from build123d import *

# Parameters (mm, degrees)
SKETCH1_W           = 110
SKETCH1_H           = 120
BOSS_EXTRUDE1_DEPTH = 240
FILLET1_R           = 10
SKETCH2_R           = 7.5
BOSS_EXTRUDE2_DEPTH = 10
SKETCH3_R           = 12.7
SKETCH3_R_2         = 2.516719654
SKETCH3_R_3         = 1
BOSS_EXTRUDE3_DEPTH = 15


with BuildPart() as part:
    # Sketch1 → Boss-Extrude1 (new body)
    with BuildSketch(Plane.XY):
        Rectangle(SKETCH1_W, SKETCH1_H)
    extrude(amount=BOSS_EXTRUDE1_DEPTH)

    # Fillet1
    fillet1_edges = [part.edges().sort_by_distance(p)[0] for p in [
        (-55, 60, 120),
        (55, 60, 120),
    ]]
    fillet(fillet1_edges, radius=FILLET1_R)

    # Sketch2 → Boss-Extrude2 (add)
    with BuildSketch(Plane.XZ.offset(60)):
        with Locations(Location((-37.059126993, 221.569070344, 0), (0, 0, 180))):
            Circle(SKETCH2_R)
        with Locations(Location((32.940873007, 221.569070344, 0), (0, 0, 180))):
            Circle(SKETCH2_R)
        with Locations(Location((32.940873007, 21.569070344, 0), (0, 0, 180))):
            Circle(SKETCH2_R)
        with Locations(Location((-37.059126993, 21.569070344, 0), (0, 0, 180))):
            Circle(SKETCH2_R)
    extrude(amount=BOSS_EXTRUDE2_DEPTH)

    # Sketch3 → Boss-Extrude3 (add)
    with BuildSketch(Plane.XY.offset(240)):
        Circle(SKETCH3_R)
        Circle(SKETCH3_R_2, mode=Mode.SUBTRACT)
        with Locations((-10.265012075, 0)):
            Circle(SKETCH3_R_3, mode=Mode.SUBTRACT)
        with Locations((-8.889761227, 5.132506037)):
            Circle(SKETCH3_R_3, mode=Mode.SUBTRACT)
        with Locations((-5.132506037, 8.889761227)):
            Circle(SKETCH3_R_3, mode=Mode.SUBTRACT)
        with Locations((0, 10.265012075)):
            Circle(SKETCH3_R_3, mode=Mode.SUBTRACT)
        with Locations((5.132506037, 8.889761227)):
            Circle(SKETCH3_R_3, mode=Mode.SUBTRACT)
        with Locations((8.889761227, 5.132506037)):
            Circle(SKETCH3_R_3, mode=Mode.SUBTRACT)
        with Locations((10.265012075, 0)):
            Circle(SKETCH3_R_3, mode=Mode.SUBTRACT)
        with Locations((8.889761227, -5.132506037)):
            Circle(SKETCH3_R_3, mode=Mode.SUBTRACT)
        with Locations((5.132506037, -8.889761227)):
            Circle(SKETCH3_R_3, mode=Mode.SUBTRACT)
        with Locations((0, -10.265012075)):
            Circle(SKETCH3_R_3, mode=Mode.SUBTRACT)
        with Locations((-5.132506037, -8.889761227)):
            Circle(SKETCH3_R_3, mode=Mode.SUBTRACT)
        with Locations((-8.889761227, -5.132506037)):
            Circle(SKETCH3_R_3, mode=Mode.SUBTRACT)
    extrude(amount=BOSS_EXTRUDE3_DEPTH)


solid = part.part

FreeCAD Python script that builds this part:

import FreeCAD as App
import Part
import Sketcher

V = App.Vector


def edges_at(feature, points):
    """Names of the edges that pass closest to the given points."""
    edges = feature.Shape.Edges
    near = lambda p: min(range(len(edges)), key=lambda i: edges[i].distToShape(Part.Vertex(*p))[0])
    return sorted({f"Edge{near(p) + 1}" for p in points})

doc = App.newDocument("Part")
params = doc.addObject("Spreadsheet::Sheet", "Params")
for row, (alias, value) in enumerate([
    ("sketch1_width", "110 mm"),
    ("sketch1_height", "120 mm"),
    ("pad1_length", "240 mm"),
    ("fillet_radius", "10 mm"),
    ("sketch2_diameter", "15 mm"),
    ("pad2_length", "10 mm"),
    ("sketch3_diameter", "2 mm"),
    ("sketch3_diameter2", "25.4 mm"),
    ("pad3_length", "15 mm"),
], start=1):
    params.set(f"A{row}", alias)
    params.set(f"B{row}", "=" + value)
    params.setAlias(f"B{row}", alias)

body = doc.addObject("PartDesign::Body", "Body")

# Sketch on XY plane
sketch1 = body.newObject("Sketcher::SketchObject", "Sketch")
sketch1.AttachmentSupport = (doc.getObject("XY_Plane"), [""])
sketch1.MapMode = "FlatFace"
sketch1.addGeometry([
    Part.LineSegment(V(-55, 60, 0), V(-55, -60, 0)),
    Part.LineSegment(V(-55, -60, 0), V(55, -60, 0)),
    Part.LineSegment(V(55, -60, 0), V(55, 60, 0)),
    Part.LineSegment(V(55, 60, 0), V(-55, 60, 0)),
], False)
sketch1.addConstraint([
    Sketcher.Constraint("Coincident", 0, 2, 1, 1),
    Sketcher.Constraint("Coincident", 1, 2, 2, 1),
    Sketcher.Constraint("Coincident", 2, 2, 3, 1),
    Sketcher.Constraint("Coincident", 3, 2, 0, 1),
    Sketcher.Constraint("Vertical", 0),
    Sketcher.Constraint("Horizontal", 1),
    Sketcher.Constraint("Vertical", 2),
    Sketcher.Constraint("Horizontal", 3),
    Sketcher.Constraint("Symmetric", 0, 2, 2, 2, -1, 1),
    Sketcher.Constraint("DistanceX", 1, 1, 1, 2, 110.0),
    Sketcher.Constraint("DistanceY", 0, 2, 0, 1, 120.0),
])
sketch1.setExpression("Constraints[9]", "Params.sketch1_width")
sketch1.setExpression("Constraints[10]", "Params.sketch1_height")
pad1 = body.newObject("PartDesign::Pad", "Pad")
pad1.Profile = sketch1
pad1.setExpression("Length", "Params.pad1_length")
doc.recompute()

fillet = body.newObject("PartDesign::Fillet", "Fillet")
fillet.Base = (pad1, edges_at(pad1, [(-55, 60, 120), (55, 60, 120)]))
fillet.setExpression("Radius", "Params.fillet_radius")

# Sketch on XZ plane
sketch2 = body.newObject("Sketcher::SketchObject", "Sketch001")
sketch2.AttachmentSupport = (doc.getObject("XZ_Plane"), [""])
sketch2.MapMode = "FlatFace"
sketch2.AttachmentOffset = App.Placement(V(0, 0, 60), App.Rotation())
sketch2.addGeometry([
    Part.Circle(V(-37, 222, 0), V(0, 0, 1), 8),
    Part.Circle(V(33, 222, 0), V(0, 0, 1), 8),
    Part.Circle(V(33, 22, 0), V(0, 0, 1), 8),
    Part.Circle(V(-37, 22, 0), V(0, 0, 1), 8),
], False)
sketch2.addConstraint([
    Sketcher.Constraint("Equal", 0, 1),
    Sketcher.Constraint("Equal", 1, 2),
    Sketcher.Constraint("Equal", 2, 3),
    Sketcher.Constraint("Horizontal", 0, 3, 1, 3),
    Sketcher.Constraint("Horizontal", 2, 3, 3, 3),
    Sketcher.Constraint("Vertical", 1, 3, 2, 3),
    Sketcher.Constraint("Vertical", 0, 3, 3, 3),
    Sketcher.Constraint("Diameter", 0, 15.0),
    Sketcher.Constraint("DistanceX", 0, 3, 1, 3, 70.0),
    Sketcher.Constraint("DistanceY", 2, 3, 1, 3, 200.0),
    Sketcher.Constraint("DistanceY", -1, 1, 0, 3, 221.56907),
    Sketcher.Constraint("DistanceX", 0, 3, -1, 1, 37.059127),
])
sketch2.setExpression("Constraints[7]", "Params.sketch2_diameter")
pad2 = body.newObject("PartDesign::Pad", "Pad001")
pad2.Profile = sketch2
pad2.setExpression("Length", "Params.pad2_length")

# Sketch on XY plane
sketch3 = body.newObject("Sketcher::SketchObject", "Sketch002")
sketch3.AttachmentSupport = (doc.getObject("XY_Plane"), [""])
sketch3.MapMode = "FlatFace"
sketch3.AttachmentOffset = App.Placement(V(0, 0, 240), App.Rotation())
sketch3.addGeometry([
    Part.Circle(V(0, 0, 0), V(0, 0, 1), 12.7),  # 0
    Part.Circle(V(-5.1, -8.9, 0), V(0, 0, 1), 1),  # 1
    Part.Circle(V(-8.9, -5.1, 0), V(0, 0, 1), 1),  # 2
    Part.Circle(V(0, -10.3, 0), V(0, 0, 1), 1),  # 3
    Part.Circle(V(5.1, -8.9, 0), V(0, 0, 1), 1),  # 4
    Part.Circle(V(8.9, -5.1, 0), V(0, 0, 1), 1),  # 5
    Part.Circle(V(-10.3, 0, 0), V(0, 0, 1), 1),  # 6
    Part.Circle(V(-8.9, 5.1, 0), V(0, 0, 1), 1),  # 7
    Part.Circle(V(-5.1, 8.9, 0), V(0, 0, 1), 1),  # 8
    Part.Circle(V(0, 0, 0), V(0, 0, 1), 2.5),  # 9
    Part.Circle(V(10.3, 0, 0), V(0, 0, 1), 1),  # 10
    Part.Circle(V(8.9, 5.1, 0), V(0, 0, 1), 1),  # 11
    Part.Circle(V(0, 10.3, 0), V(0, 0, 1), 1),  # 12
    Part.Circle(V(5.1, 8.9, 0), V(0, 0, 1), 1),  # 13
], False)
sketch3.addConstraint([
    Sketcher.Constraint("Coincident", 0, 3, -1, 1),
    Sketcher.Constraint("Coincident", 9, 3, -1, 1),
    Sketcher.Constraint("Equal", 1, 2),
    Sketcher.Constraint("Equal", 2, 3),
    Sketcher.Constraint("Equal", 3, 4),
    Sketcher.Constraint("Equal", 4, 5),
    Sketcher.Constraint("Equal", 5, 6),
    Sketcher.Constraint("Equal", 6, 7),
    Sketcher.Constraint("Equal", 7, 8),
    Sketcher.Constraint("Equal", 8, 10),
    Sketcher.Constraint("Equal", 10, 11),
    Sketcher.Constraint("Equal", 11, 12),
    Sketcher.Constraint("Equal", 12, 13),
    Sketcher.Constraint("Symmetric", 5, 3, 7, 3, -1, 1),
    Sketcher.Constraint("Symmetric", 4, 3, 8, 3, -1, 1),
    Sketcher.Constraint("Symmetric", 6, 3, 10, 3, -1, 1),
    Sketcher.Constraint("Symmetric", 2, 3, 11, 3, -1, 1),
    Sketcher.Constraint("Symmetric", 3, 3, 12, 3, -1, 1),
    Sketcher.Constraint("Symmetric", 1, 3, 13, 3, -1, 1),
    Sketcher.Constraint("Symmetric", 1, 3, 4, 3, -2),
    Sketcher.Constraint("Symmetric", 2, 3, 5, 3, -2),
    Sketcher.Constraint("PointOnObject", 3, 3, -2),
    Sketcher.Constraint("PointOnObject", 6, 3, -1),
    Sketcher.Constraint("Diameter", 1, 2.0),
    Sketcher.Constraint("Diameter", 0, 25.4),
    Sketcher.Constraint("Diameter", 9, 5.033439),
    Sketcher.Constraint("DistanceY", 1, 3, -1, 1, 8.889761),
    Sketcher.Constraint("DistanceX", 2, 3, -1, 1, 8.889761),
    Sketcher.Constraint("DistanceY", 3, 3, 1, 3, 1.375251),
    Sketcher.Constraint("DistanceX", 6, 3, 2, 3, 1.375251),
    Sketcher.Constraint("DistanceX", 6, 3, 4, 3, 15.397518),
    Sketcher.Constraint("DistanceY", 3, 3, 7, 3, 15.397518),
])
sketch3.setExpression("Constraints[23]", "Params.sketch3_diameter")
sketch3.setExpression("Constraints[24]", "Params.sketch3_diameter2")
pad3 = body.newObject("PartDesign::Pad", "Pad002")
pad3.Profile = sketch3
pad3.setExpression("Length", "Params.pad3_length")

doc.recompute()
